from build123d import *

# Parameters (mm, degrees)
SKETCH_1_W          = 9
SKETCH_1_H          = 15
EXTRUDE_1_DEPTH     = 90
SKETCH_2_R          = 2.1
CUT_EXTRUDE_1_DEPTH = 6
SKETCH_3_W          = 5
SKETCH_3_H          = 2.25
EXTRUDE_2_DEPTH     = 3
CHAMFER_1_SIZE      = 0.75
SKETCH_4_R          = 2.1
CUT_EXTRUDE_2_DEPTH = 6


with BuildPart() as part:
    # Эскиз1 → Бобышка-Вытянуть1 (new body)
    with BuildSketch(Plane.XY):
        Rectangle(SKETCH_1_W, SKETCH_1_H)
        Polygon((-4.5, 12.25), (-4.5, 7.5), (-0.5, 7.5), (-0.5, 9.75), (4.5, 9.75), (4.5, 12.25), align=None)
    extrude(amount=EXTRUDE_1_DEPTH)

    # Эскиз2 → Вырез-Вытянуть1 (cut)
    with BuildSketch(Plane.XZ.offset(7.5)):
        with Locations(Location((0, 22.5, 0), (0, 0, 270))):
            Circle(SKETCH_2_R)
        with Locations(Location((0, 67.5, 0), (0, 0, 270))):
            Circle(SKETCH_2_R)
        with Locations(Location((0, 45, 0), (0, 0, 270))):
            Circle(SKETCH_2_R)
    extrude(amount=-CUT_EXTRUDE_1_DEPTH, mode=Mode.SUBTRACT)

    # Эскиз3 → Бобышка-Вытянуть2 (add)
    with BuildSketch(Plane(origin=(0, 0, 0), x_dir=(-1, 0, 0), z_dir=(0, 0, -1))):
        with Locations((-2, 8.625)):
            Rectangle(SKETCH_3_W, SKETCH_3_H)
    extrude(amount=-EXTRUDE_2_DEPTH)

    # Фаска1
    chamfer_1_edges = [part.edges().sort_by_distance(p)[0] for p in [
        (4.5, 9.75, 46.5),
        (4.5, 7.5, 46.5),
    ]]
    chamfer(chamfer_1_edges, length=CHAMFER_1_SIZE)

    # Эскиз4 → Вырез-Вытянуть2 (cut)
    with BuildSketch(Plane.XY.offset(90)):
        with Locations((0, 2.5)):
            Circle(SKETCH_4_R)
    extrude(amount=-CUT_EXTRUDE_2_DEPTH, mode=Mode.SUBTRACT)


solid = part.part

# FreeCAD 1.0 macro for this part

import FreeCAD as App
import Part
import Sketcher
Q = App.Units.Quantity


def edges_at(feature, points):
    """Names of the edges that pass closest to the given points."""
    edges = feature.Shape.Edges
    near = lambda p: min(range(len(edges)), key=lambda i: edges[i].distToShape(Part.Vertex(*p))[0])
    return sorted({f"Edge{near(p) + 1}" for p in points})


def add_polygon(sketch, points):
    """Adds a closed chain of lines whose ends are joined by coincident constraints."""
    first, n = sketch.GeometryCount, len(points)
    for a, b in zip(points, points[1:] + points[:1]):
        sketch.addGeometry(Part.LineSegment(App.Vector(*a, 0), App.Vector(*b, 0)), False)
    for i in range(n):
        sketch.addConstraint(Sketcher.Constraint("Coincident", first + i, 2, first + (i + 1) % n, 1))

doc = App.newDocument("Part")
body = doc.addObject("PartDesign::Body", "Body")

# Sketch on XY plane
sketch1 = doc.addObject("Sketcher::SketchObject", "Sketch")
body.addObject(sketch1)
sketch1.AttachmentSupport = (doc.XY_Plane, [""])
sketch1.MapMode = "FlatFace"
add_polygon(sketch1, [(-4.5, -7.5), (4.5, -7.5), (4.5, 7.5), (-0.5, 7.5), (-0.5, 9.8), (4.5, 9.8), (4.5, 12.2), (-4.5, 12.2)])  # lines 0-7
sketch1.addConstraint([
    Sketcher.Constraint("Horizontal", 0),
    Sketcher.Constraint("Vertical", 1),
    Sketcher.Constraint("Horizontal", 2),
    Sketcher.Constraint("Vertical", 3),
    Sketcher.Constraint("Horizontal", 4),
    Sketcher.Constraint("Vertical", 5),
    Sketcher.Constraint("Horizontal", 6),
    Sketcher.Constraint("Vertical", 7),
    Sketcher.Constraint("Symmetric", 1, 2, 7, 2, -1, 1),
    Sketcher.Constraint("Vertical", 1, 2, 4, 2),
    Sketcher.Constraint("DistanceX", 0, 1, 0, 2, Q("9 mm")),
    Sketcher.Constraint("DistanceX", 2, 2, 2, 1, Q("5 mm")),
    Sketcher.Constraint("DistanceY", 1, 1, 1, 2, Q("15 mm")),
    Sketcher.Constraint("DistanceY", 5, 1, 5, 2, Q("2.5 mm")),
    Sketcher.Constraint("DistanceY", 3, 1, 3, 2, Q("2.25 mm")),
])
pad1 = doc.addObject("PartDesign::Pad", "Pad")
body.addObject(pad1)
pad1.Profile = sketch1
pad1.Length = 90

# Sketch on XZ plane
sketch2 = doc.addObject("Sketcher::SketchObject", "Sketch001")
body.addObject(sketch2)
sketch2.AttachmentSupport = (doc.XZ_Plane, [""])
sketch2.MapMode = "FlatFace"
sketch2.AttachmentOffset = App.Placement(App.Vector(0, 0, 7.5), App.Rotation())
sketch2.addGeometry([
    Part.Circle(App.Vector(0, 22.5, 0), App.Vector(0, 0, 1), 2.1),
    Part.Circle(App.Vector(0, 67.5, 0), App.Vector(0, 0, 1), 2.1),
    Part.Circle(App.Vector(0, 45, 0), App.Vector(0, 0, 1), 2.1),
], False)
sketch2.addConstraint([
    Sketcher.Constraint("Equal", 0, 1),
    Sketcher.Constraint("Equal", 1, 2),
    Sketcher.Constraint("PointOnObject", 0, 3, -2),
    Sketcher.Constraint("PointOnObject", 1, 3, -2),
    Sketcher.Constraint("PointOnObject", 2, 3, -2),
    Sketcher.Constraint("Diameter", 0, Q("4.2 mm")),
    Sketcher.Constraint("DistanceY", -1, 1, 2, 3, Q("45 mm")),
    Sketcher.Constraint("DistanceY", 0, 3, 1, 3, Q("45 mm")),
    Sketcher.Constraint("DistanceY", -1, 1, 0, 3, Q("22.5 mm")),
])
pocket1 = doc.addObject("PartDesign::Pocket", "Pocket")
body.addObject(pocket1)
pocket1.Profile = sketch2
pocket1.Length = 6

# Sketch on XY plane
sketch3 = doc.addObject("Sketcher::SketchObject", "Sketch002")
body.addObject(sketch3)
sketch3.AttachmentSupport = (doc.XY_Plane, [""])
sketch3.MapMode = "FlatFace"
add_polygon(sketch3, [(4.5, 9.8), (4.5, 7.5), (-0.5, 7.5), (-0.5, 9.8)])  # lines 0-3
sketch3.addConstraint([
    Sketcher.Constraint("Vertical", 0),
    Sketcher.Constraint("Horizontal", 1),
    Sketcher.Constraint("Vertical", 2),
    Sketcher.Constraint("Horizontal", 3),
    Sketcher.Constraint("DistanceX", 1, 2, 1, 1, Q("5 mm")),
    Sketcher.Constraint("DistanceY", 0, 2, 0, 1, Q("2.25 mm")),
    Sketcher.Constraint("DistanceX", -1, 1, 0, 2, Q("4.5 mm")),
    Sketcher.Constraint("DistanceY", -1, 1, 0, 2, Q("7.5 mm")),
])
pad2 = doc.addObject("PartDesign::Pad", "Pad001")
body.addObject(pad2)
pad2.Profile = sketch3
pad2.Length = 3
doc.recompute()

chamfer = doc.addObject("PartDesign::Chamfer", "Chamfer")
body.addObject(chamfer)
chamfer.Base = (pad2, edges_at(pad2, [(4.5, 9.75, 46.5), (4.5, 7.5, 46.5)]))
chamfer.Size = 0.75

# Sketch on XY plane
sketch4 = doc.addObject("Sketcher::SketchObject", "Sketch003")
body.addObject(sketch4)
sketch4.AttachmentSupport = (doc.XY_Plane, [""])
sketch4.MapMode = "FlatFace"
sketch4.AttachmentOffset = App.Placement(App.Vector(0, 0, 90), App.Rotation())
sketch4.addGeometry(Part.Circle(App.Vector(0, 2.5, 0), App.Vector(0, 0, 1), 2.1), False)
sketch4.addConstraint([
    Sketcher.Constraint("PointOnObject", 0, 3, -2),
    Sketcher.Constraint("Diameter", 0, Q("4.2 mm")),
    Sketcher.Constraint("DistanceY", -1, 1, 0, 3, Q("2.5 mm")),
])
pocket2 = doc.addObject("PartDesign::Pocket", "Pocket001")
body.addObject(pocket2)
pocket2.Profile = sketch4
pocket2.Length = 6

doc.recompute()
